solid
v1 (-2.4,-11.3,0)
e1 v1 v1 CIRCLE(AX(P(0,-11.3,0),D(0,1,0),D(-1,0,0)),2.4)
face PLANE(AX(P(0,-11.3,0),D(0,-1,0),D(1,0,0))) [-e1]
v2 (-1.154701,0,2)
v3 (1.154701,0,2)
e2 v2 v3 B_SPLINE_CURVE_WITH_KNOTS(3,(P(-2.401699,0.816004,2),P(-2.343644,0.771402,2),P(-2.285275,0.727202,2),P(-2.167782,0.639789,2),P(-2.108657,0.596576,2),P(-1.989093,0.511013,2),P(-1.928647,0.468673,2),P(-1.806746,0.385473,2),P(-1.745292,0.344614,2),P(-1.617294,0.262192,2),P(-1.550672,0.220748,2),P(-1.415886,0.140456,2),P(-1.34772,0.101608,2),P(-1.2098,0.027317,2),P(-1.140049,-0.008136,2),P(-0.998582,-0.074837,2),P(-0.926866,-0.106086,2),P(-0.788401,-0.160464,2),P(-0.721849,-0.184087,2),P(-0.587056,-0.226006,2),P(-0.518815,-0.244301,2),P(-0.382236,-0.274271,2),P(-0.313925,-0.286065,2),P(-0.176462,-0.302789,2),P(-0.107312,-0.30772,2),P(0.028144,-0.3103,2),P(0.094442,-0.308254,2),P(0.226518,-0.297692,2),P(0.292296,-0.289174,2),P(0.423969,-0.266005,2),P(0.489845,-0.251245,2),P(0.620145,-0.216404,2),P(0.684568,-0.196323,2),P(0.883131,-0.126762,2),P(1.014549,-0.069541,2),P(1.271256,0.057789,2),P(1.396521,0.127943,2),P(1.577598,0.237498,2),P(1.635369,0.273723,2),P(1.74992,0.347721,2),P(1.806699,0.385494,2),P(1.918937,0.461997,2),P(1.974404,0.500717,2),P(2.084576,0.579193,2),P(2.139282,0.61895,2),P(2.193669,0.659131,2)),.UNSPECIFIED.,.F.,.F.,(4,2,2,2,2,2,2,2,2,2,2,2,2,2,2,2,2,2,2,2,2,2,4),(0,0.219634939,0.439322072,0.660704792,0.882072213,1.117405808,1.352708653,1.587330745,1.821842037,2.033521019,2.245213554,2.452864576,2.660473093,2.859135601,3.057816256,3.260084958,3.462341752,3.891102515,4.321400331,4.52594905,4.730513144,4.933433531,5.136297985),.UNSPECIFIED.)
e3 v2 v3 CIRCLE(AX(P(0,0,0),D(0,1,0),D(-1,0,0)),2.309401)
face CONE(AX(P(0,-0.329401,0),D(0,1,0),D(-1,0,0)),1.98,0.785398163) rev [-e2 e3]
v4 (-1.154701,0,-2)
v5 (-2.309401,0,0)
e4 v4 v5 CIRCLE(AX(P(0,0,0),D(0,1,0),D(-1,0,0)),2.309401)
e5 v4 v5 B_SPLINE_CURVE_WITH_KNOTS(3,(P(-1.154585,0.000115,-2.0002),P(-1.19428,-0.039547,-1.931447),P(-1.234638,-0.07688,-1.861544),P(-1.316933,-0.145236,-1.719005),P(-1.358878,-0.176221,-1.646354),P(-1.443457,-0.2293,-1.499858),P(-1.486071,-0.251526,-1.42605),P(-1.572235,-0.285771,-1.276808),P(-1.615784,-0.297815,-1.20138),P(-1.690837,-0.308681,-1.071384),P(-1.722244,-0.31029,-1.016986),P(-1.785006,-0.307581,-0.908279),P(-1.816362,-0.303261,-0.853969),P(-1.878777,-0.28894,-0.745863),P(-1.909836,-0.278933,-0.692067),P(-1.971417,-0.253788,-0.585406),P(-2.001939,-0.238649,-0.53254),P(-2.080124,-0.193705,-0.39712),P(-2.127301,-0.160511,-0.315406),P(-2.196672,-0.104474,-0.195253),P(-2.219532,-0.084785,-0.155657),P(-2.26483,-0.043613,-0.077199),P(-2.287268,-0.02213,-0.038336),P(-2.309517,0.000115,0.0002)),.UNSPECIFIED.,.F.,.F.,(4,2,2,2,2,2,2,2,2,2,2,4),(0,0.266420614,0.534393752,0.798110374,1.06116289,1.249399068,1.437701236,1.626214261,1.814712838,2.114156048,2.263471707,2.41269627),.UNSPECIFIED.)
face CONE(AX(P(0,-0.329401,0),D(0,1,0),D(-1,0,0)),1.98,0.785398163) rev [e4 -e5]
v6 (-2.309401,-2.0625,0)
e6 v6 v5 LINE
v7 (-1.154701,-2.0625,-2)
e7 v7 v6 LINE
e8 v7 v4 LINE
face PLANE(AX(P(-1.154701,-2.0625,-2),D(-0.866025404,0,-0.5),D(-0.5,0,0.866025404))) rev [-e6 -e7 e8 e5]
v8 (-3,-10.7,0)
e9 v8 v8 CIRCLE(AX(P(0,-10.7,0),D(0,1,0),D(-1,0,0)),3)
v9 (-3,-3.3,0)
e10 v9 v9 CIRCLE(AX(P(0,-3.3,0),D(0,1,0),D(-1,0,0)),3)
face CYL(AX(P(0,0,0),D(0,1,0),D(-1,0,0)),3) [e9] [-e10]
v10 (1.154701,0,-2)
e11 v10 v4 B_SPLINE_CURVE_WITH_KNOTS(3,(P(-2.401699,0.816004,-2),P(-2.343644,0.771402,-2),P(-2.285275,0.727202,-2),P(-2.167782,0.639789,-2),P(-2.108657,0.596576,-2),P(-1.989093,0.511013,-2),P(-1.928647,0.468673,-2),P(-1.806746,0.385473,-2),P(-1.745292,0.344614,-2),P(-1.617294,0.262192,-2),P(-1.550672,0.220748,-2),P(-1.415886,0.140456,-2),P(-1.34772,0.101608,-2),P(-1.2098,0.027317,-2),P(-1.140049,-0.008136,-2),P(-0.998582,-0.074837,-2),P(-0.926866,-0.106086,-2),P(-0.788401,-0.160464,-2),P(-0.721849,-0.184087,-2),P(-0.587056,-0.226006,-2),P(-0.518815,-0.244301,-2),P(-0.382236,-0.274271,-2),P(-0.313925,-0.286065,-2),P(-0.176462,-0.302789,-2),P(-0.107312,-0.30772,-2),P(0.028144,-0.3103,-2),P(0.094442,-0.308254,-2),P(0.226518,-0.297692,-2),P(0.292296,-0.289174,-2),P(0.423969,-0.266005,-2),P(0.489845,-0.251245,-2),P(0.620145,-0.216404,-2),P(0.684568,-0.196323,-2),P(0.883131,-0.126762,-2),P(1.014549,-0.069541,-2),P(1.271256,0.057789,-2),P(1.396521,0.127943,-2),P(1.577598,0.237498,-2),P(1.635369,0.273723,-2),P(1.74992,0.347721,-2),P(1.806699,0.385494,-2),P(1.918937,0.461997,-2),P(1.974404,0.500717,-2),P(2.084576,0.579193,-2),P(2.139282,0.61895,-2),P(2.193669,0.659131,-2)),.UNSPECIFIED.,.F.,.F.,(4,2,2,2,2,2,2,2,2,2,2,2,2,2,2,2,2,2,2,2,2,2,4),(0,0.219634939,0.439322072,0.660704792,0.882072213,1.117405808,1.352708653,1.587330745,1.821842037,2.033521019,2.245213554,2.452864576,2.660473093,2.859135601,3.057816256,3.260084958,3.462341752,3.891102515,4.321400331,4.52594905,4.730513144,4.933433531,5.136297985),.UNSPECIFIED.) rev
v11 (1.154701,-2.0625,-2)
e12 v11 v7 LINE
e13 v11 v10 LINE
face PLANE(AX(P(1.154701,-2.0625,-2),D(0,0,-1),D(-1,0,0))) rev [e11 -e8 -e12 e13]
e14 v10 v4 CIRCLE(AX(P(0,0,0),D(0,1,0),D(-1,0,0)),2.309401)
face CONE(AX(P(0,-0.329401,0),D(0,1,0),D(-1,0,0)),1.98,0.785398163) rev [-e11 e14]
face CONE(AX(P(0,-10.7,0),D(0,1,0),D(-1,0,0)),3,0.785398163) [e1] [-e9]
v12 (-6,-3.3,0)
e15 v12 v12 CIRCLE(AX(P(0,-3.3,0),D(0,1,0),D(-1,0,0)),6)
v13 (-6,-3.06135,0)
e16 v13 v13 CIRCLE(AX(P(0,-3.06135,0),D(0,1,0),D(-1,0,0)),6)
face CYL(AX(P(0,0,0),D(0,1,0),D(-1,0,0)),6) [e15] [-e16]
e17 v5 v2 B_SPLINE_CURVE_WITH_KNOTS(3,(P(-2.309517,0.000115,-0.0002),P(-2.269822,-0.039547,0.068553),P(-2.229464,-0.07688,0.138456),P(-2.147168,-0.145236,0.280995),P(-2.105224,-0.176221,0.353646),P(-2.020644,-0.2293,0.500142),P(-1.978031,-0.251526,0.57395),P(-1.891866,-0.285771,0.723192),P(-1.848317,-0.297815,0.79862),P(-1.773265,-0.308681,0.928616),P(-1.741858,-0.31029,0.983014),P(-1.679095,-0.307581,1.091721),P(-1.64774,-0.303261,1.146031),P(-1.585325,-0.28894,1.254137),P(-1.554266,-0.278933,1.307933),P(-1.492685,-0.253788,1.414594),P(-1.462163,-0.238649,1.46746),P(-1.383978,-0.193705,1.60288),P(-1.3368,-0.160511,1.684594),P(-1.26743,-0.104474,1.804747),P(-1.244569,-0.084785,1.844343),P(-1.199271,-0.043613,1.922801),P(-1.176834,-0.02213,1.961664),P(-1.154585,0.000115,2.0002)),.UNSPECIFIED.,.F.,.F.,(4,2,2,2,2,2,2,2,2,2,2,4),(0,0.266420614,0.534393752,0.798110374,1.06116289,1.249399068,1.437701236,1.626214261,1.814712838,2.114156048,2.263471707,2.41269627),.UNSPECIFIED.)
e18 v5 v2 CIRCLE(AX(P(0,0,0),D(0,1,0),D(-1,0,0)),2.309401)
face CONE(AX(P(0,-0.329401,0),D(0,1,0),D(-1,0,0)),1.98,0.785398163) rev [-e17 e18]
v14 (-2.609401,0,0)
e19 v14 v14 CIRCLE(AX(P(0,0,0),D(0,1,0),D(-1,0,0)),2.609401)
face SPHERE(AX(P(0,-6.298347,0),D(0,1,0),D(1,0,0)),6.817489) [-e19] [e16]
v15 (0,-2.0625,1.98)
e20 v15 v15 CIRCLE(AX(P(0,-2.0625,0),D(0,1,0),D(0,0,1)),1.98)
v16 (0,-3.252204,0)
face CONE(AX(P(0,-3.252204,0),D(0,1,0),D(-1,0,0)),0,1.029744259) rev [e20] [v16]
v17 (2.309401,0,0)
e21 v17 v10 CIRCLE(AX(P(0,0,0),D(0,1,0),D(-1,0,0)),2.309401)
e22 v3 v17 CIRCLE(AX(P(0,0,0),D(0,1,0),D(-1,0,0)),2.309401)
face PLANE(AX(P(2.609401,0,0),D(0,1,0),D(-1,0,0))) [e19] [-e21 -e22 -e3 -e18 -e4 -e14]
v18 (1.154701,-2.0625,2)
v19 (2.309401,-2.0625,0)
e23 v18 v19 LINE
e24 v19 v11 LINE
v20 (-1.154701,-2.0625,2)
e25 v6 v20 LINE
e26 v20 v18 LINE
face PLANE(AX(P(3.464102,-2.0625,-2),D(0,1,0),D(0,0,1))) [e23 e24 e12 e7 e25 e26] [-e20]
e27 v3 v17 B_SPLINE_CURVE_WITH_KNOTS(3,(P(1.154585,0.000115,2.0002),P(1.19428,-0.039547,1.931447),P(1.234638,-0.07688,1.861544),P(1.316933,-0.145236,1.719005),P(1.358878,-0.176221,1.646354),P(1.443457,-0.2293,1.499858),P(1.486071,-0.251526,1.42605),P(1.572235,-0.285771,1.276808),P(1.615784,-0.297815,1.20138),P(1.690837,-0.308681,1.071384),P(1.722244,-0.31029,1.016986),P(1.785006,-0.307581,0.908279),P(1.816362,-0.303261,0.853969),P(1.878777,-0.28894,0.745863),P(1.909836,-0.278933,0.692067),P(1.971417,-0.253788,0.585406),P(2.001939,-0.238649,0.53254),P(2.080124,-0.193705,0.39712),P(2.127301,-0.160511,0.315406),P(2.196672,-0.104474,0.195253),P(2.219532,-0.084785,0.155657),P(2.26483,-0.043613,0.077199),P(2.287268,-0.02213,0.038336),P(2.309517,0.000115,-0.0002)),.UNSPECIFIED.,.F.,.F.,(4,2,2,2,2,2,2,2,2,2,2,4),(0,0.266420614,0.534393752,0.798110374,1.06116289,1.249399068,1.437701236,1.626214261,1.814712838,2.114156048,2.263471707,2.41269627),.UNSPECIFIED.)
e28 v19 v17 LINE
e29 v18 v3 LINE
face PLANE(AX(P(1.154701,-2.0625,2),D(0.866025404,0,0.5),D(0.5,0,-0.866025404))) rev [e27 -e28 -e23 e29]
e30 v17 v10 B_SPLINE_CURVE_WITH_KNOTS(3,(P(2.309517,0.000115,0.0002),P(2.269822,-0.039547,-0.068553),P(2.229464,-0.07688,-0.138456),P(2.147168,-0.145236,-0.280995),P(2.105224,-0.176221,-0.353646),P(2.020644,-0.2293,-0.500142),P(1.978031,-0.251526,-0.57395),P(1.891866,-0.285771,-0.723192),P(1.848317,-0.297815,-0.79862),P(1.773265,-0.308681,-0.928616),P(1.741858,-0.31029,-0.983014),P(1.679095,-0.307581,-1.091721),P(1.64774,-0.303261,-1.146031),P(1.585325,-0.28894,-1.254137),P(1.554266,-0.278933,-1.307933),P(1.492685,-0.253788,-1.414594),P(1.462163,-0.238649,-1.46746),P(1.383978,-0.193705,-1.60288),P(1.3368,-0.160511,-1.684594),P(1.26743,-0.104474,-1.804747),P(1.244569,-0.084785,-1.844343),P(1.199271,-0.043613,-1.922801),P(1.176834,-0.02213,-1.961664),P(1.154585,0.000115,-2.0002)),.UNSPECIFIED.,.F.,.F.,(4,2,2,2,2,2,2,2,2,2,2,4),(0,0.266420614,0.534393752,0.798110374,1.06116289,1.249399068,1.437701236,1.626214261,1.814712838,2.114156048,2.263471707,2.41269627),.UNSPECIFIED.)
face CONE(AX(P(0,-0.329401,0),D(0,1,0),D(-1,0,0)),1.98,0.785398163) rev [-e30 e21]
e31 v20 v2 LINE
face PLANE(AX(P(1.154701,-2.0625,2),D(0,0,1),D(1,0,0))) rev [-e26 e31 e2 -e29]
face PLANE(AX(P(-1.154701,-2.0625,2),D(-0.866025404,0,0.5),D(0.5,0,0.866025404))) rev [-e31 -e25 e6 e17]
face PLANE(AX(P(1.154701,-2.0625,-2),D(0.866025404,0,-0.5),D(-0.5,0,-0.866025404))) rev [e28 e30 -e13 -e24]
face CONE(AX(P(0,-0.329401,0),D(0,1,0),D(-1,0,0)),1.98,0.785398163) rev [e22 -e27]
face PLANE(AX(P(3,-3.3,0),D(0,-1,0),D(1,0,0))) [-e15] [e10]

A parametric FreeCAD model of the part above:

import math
import FreeCAD as App
import Part
import Sketcher
from FreeCAD import Vector
Q = App.Units.Quantity

doc = App.newDocument("Part")
body = doc.addObject("PartDesign::Body", "Body")

sketch1 = body.newObject("Sketcher::SketchObject", "Sketch")
sketch1.AttachmentSupport = (doc.getObject("XY_Plane"), [""])
sketch1.MapMode = "FlatFace"
sketch1.addGeometry([
    Part.LineSegment(Vector(2.4, -11.3, 0), Vector(0, -11.3, 0)),
    Part.LineSegment(Vector(0, -11.3, 0), Vector(0, -3.25, 0)),
    Part.LineSegment(Vector(0, -3.25, 0), Vector(1.98, -2.06, 0)),
    Part.LineSegment(Vector(1.98, -2.06, 0), Vector(1.98, -0.33, 0)),
    Part.LineSegment(Vector(1.98, -0.33, 0), Vector(2.31, 0, 0)),
    Part.LineSegment(Vector(2.31, 0, 0), Vector(2.61, 0, 0)),
    Part.ArcOfCircle(Part.Circle(Vector(0, -6.3, 0), Vector(0, 0, 1), 6.82), math.radians(28), math.radians(67)),
    Part.LineSegment(Vector(6, -3.06, 0), Vector(6, -3.3, 0)),
    Part.LineSegment(Vector(6, -3.3, 0), Vector(3, -3.3, 0)),
    Part.LineSegment(Vector(3, -3.3, 0), Vector(3, -10.7, 0)),
    Part.LineSegment(Vector(3, -10.7, 0), Vector(2.4, -11.3, 0)),
], False)
sketch1.addConstraint([
    Sketcher.Constraint("Coincident", 0, 2, 1, 1),
    Sketcher.Constraint("Coincident", 1, 2, 2, 1),
    Sketcher.Constraint("Coincident", 2, 2, 3, 1),
    Sketcher.Constraint("Coincident", 3, 2, 4, 1),
    Sketcher.Constraint("Coincident", 4, 2, 5, 1),
    Sketcher.Constraint("Coincident", 5, 2, 6, 2),
    Sketcher.Constraint("Coincident", 6, 1, 7, 1),
    Sketcher.Constraint("Coincident", 7, 2, 8, 1),
    Sketcher.Constraint("Coincident", 8, 2, 9, 1),
    Sketcher.Constraint("Coincident", 9, 2, 10, 1),
    Sketcher.Constraint("Coincident", 10, 2, 0, 1),
    Sketcher.Constraint("Horizontal", 0),
    Sketcher.Constraint("Vertical", 1),
    Sketcher.Constraint("Vertical", 3),
    Sketcher.Constraint("Horizontal", 5),
    Sketcher.Constraint("Vertical", 7),
    Sketcher.Constraint("Horizontal", 8),
    Sketcher.Constraint("Vertical", 9),
    Sketcher.Constraint("PointOnObject", 6, 3, -2),
    Sketcher.Constraint("PointOnObject", 0, 2, -2),
    Sketcher.Constraint("PointOnObject", 4, 2, -1),
    Sketcher.Constraint("Parallel", 4, 10),
    Sketcher.Constraint("DistanceX", 8, 2, 8, 1, Q("3 mm")),
    Sketcher.Constraint("Angle", 2, Q("31 deg")),
    Sketcher.Constraint("Angle", 4, Q("45 deg")),
    Sketcher.Constraint("DistanceX", 0, 2, 0, 1, Q("2.4 mm")),
    Sketcher.Constraint("DistanceX", 5, 1, 5, 2, Q("0.3 mm")),
    Sketcher.Constraint("DistanceY", 9, 2, 9, 1, Q("7.4 mm")),
    Sketcher.Constraint("DistanceX", -1, 1, 6, 1, Q("6 mm")),
    Sketcher.Constraint("DistanceY", 0, 2, -1, 1, Q("11.3 mm")),
    Sketcher.Constraint("DistanceX", -1, 1, 2, 2, Q("1.98 mm")),
    Sketcher.Constraint("Radius", 6, Q("6.817489 mm")),
    Sketcher.Constraint("DistanceY", 3, 1, 3, 2, Q("1.733099 mm")),
    Sketcher.Constraint("DistanceY", 7, 2, 7, 1, Q("0.23865 mm")),
])
revolution = body.newObject("PartDesign::Revolution", "Revolution")
revolution.Profile = sketch1
revolution.ReferenceAxis = (sketch1, ["V_Axis"])
revolution.Angle = 360

sketch2 = body.newObject("Sketcher::SketchObject", "Sketch001")
sketch2.AttachmentSupport = (doc.getObject("XZ_Plane"), [""])
sketch2.MapMode = "FlatFace"
sketch2.addGeometry([
    Part.LineSegment(Vector(1.2, -2, 0), Vector(-1.2, -2, 0)),
    Part.LineSegment(Vector(-1.2, -2, 0), Vector(-2.3, 0, 0)),
    Part.LineSegment(Vector(-2.3, 0, 0), Vector(-1.2, 2, 0)),
    Part.LineSegment(Vector(-1.2, 2, 0), Vector(1.2, 2, 0)),
    Part.LineSegment(Vector(1.2, 2, 0), Vector(2.3, 0, 0)),
    Part.LineSegment(Vector(2.3, 0, 0), Vector(1.2, -2, 0)),
], False)
sketch2.addConstraint([
    Sketcher.Constraint("Coincident", 0, 2, 1, 1),
    Sketcher.Constraint("Coincident", 1, 2, 2, 1),
    Sketcher.Constraint("Coincident", 2, 2, 3, 1),
    Sketcher.Constraint("Coincident", 3, 2, 4, 1),
    Sketcher.Constraint("Coincident", 4, 2, 5, 1),
    Sketcher.Constraint("Coincident", 5, 2, 0, 1),
    Sketcher.Constraint("Horizontal", 0),
    Sketcher.Constraint("Horizontal", 3),
    Sketcher.Constraint("Symmetric", 0, 2, 3, 2, -1, 1),
    Sketcher.Constraint("Symmetric", 1, 2, 4, 2, -1, 1),
    Sketcher.Constraint("PointOnObject", 1, 2, -1),
    Sketcher.Constraint("Parallel", 2, 5),
    Sketcher.Constraint("Vertical", 0, 2, 2, 2),
    Sketcher.Constraint("Angle", 1, Q("120 deg")),
    Sketcher.Constraint("DistanceY", 0, 2, -1, 1, Q("2 mm")),
    Sketcher.Constraint("DistanceX", 0, 2, 0, 1, Q("2.309401 mm")),
])
pocket1 = body.newObject("PartDesign::Pocket", "Pocket")
pocket1.Profile = sketch2
pocket1.Length = 2.0625
pocket1.Reversed = True

doc.recompute()
